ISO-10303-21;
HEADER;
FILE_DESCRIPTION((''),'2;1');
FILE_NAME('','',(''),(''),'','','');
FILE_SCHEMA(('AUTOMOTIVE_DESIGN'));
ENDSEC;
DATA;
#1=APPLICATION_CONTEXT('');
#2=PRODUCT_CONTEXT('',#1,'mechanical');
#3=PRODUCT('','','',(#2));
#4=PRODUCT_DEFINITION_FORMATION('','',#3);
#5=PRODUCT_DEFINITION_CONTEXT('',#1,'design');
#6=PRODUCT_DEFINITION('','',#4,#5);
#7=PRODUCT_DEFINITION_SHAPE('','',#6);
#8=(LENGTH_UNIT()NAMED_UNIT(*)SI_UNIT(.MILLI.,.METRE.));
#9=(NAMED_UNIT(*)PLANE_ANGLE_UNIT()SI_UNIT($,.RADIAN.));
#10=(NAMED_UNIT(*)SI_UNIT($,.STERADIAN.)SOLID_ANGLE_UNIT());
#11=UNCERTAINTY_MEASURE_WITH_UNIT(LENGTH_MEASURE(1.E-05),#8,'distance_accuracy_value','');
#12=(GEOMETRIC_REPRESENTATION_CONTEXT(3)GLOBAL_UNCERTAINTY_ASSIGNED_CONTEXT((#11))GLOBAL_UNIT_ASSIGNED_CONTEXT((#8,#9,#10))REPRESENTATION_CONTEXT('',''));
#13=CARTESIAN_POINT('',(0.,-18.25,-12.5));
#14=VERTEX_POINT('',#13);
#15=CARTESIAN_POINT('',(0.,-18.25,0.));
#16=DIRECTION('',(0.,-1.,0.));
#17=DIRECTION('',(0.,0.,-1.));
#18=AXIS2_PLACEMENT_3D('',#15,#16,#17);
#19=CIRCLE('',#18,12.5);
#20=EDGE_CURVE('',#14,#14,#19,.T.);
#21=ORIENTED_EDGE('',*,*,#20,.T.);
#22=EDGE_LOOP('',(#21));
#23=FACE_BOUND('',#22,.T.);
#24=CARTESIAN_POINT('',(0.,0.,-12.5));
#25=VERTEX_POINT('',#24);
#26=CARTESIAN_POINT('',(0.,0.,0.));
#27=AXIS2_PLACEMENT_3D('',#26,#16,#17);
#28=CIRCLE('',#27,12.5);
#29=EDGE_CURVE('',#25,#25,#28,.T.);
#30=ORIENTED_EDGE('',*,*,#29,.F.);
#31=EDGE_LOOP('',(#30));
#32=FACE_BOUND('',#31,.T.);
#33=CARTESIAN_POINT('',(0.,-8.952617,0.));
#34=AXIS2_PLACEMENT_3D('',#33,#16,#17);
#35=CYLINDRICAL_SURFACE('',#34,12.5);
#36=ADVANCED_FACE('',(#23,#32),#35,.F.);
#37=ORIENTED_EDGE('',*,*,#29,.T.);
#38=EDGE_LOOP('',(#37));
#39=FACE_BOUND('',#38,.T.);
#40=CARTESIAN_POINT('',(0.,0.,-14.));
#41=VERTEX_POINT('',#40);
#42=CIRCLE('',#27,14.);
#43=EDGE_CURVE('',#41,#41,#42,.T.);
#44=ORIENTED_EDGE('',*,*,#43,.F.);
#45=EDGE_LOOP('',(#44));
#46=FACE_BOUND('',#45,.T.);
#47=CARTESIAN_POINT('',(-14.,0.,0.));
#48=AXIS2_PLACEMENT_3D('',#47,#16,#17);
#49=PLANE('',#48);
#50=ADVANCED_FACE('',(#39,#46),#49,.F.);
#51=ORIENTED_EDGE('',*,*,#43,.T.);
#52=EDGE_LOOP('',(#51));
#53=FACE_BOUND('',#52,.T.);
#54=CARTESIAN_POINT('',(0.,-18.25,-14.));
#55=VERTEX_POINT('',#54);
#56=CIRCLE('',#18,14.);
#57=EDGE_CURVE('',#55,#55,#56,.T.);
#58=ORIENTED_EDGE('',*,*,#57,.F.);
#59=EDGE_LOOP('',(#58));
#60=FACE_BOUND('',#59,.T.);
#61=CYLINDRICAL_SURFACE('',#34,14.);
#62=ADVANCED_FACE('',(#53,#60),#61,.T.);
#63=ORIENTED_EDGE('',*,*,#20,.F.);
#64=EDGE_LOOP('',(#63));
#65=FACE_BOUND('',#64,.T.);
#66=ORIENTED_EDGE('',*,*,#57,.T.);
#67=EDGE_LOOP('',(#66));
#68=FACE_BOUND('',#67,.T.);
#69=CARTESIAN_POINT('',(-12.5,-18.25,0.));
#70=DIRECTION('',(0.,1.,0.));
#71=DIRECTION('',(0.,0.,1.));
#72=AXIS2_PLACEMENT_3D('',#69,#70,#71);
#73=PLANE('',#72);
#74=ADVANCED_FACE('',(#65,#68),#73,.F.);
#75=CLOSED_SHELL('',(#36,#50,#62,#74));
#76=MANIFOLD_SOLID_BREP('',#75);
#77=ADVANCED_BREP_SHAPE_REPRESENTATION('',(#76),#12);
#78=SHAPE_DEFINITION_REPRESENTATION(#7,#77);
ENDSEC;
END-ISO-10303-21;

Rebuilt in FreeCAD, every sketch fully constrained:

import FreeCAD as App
import Part
import Sketcher
from FreeCAD import Vector


def add_polygon(sketch, points):
    """Adds a closed chain of lines whose ends are joined by coincident constraints."""
    first, n = sketch.GeometryCount, len(points)
    for a, b in zip(points, points[1:] + points[:1]):
        sketch.addGeometry(Part.LineSegment(App.Vector(*a, 0), App.Vector(*b, 0)), False)
    for i in range(n):
        sketch.addConstraint(Sketcher.Constraint("Coincident", first + i, 2, first + (i + 1) % n, 1))

doc = App.newDocument("Part")
params = doc.addObject("Spreadsheet::Sheet", "Params")
for row, (alias, value) in enumerate([
    ("sketch1_width", "1.5 mm"),
    ("sketch1_height", "18.25 mm"),
    ("revolution_angle", "360 deg"),
], start=1):
    params.set(f"A{row}", alias)
    params.set(f"B{row}", "=" + value)
    params.setAlias(f"B{row}", alias)

body = doc.addObject("PartDesign::Body", "Body")

sketch1 = body.newObject("Sketcher::SketchObject", "Sketch")
sketch1.AttachmentSupport = (doc.getObject("XY_Plane"), [""])
sketch1.MapMode = "FlatFace"
add_polygon(sketch1, [(-14, 0), (-14, -18.25), (-12.5, -18.25), (-12.5, 0)])
sketch1.addConstraint(Sketcher.Constraint("Vertical", 0))
sketch1.addConstraint(Sketcher.Constraint("Horizontal", 1))
sketch1.addConstraint(Sketcher.Constraint("Vertical", 2))
sketch1.addConstraint(Sketcher.Constraint("Horizontal", 3))
sketch1.addConstraint(Sketcher.Constraint("PointOnObject", 2, 2, -1))
sketch1.addConstraint(Sketcher.Constraint("DistanceX", 1, 1, 1, 2, 1.5))
sketch1.addConstraint(Sketcher.Constraint("DistanceX", 0, 2, -1, 1, 14.0))
sketch1.addConstraint(Sketcher.Constraint("DistanceY", 0, 2, 0, 1, 18.25))
sketch1.setExpression("Constraints[9]", "Params.sketch1_width")
sketch1.setExpression("Constraints[11]", "Params.sketch1_height")
revolution = body.newObject("PartDesign::Revolution", "Revolution")
revolution.Profile = sketch1
revolution.ReferenceAxis = (sketch1, ["V_Axis"])
revolution.setExpression("Angle", "Params.revolution_angle")

doc.recompute()
